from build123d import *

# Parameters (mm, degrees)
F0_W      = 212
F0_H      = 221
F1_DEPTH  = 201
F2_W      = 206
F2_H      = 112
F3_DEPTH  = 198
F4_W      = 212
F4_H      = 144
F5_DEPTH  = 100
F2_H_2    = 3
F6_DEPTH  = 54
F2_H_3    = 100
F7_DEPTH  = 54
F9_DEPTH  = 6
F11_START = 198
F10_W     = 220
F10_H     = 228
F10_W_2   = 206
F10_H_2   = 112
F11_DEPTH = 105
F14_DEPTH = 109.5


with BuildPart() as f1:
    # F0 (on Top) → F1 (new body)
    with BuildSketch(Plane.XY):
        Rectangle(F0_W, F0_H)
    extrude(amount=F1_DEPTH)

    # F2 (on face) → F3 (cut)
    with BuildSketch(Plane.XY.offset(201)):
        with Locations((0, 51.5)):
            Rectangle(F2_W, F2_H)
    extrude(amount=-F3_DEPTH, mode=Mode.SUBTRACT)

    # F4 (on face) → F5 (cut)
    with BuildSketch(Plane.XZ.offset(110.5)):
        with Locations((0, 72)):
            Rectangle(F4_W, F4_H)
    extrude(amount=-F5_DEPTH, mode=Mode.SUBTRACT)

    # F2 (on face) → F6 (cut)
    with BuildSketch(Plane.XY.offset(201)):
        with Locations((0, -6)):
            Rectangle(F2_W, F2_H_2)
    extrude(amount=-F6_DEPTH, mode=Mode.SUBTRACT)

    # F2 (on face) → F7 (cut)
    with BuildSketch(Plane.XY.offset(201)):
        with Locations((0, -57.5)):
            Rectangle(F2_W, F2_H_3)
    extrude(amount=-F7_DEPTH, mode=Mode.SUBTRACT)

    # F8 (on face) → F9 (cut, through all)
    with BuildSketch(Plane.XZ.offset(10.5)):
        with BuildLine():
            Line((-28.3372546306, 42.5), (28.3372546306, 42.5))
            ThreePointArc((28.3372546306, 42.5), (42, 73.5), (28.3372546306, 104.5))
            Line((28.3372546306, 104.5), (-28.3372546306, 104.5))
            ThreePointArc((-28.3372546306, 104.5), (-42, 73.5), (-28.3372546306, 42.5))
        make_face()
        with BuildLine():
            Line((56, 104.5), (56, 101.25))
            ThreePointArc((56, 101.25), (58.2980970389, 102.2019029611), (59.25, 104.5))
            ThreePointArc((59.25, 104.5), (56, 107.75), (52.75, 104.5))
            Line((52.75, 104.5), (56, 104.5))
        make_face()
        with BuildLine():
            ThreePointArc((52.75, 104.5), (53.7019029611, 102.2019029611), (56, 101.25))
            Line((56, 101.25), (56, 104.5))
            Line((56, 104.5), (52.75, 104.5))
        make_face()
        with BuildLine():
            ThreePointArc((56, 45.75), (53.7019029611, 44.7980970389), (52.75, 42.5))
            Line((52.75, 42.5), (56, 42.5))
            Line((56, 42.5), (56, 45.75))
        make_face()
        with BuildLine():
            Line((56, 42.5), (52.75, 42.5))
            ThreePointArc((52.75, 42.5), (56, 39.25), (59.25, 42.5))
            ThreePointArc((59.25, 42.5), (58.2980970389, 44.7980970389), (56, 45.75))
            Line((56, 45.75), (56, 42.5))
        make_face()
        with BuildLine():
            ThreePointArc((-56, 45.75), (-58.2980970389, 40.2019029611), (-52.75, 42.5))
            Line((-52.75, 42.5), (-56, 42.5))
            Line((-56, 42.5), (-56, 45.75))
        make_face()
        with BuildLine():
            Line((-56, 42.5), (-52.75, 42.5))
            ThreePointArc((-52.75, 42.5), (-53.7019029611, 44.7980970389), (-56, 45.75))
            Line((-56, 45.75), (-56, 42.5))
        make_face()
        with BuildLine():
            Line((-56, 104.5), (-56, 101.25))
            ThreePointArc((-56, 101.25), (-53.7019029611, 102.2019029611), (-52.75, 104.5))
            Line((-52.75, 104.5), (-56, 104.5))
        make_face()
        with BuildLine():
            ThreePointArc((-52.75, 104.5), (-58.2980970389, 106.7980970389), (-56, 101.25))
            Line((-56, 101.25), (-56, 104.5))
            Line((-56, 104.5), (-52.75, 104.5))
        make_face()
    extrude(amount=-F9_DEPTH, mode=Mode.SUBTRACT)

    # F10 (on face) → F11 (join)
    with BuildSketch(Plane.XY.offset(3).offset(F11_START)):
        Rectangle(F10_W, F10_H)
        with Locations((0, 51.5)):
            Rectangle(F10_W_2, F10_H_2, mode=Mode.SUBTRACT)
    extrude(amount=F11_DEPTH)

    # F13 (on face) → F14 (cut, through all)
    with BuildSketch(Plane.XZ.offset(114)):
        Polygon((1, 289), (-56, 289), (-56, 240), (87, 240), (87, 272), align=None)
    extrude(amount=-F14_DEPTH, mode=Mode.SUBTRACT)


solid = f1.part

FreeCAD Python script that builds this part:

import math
import FreeCAD as App
import Part
import Sketcher

doc = App.newDocument("Part")
params = doc.addObject("Spreadsheet::Sheet", "Params")
for row, (alias, value) in enumerate([
    ("sketch1_width", "212 mm"),
    ("sketch1_height", "221 mm"),
    ("pad1_length", "201 mm"),
    ("sketch2_width", "206 mm"),
    ("sketch2_height", "112 mm"),
    ("pocket1_length", "198 mm"),
    ("sketch3_width", "212 mm"),
    ("sketch3_height", "144 mm"),
    ("pocket2_length", "100 mm"),
    ("sketch4_width", "206 mm"),
    ("sketch4_height", "3 mm"),
    ("pocket3_length", "54 mm"),
    ("sketch5_width", "206 mm"),
    ("sketch5_height", "100 mm"),
    ("pocket4_length", "54 mm"),
    ("sketch6_radius", "42 mm"),
    ("sketch6_radius2", "3.25 mm"),
    ("pocket5_length", "6 mm"),
    ("sketch7_width", "220 mm"),
    ("sketch7_width2", "206 mm"),
    ("sketch7_height", "228 mm"),
    ("sketch7_height2", "112 mm"),
    ("pad2_length", "105 mm"),
    ("sketch8_width", "57 mm"),
    ("sketch8_width2", "143 mm"),
    ("sketch8_height", "49 mm"),
    ("sketch8_height2", "32 mm"),
    ("pocket6_length", "109.5 mm"),
], start=1):
    params.set(f"A{row}", alias)
    params.set(f"B{row}", "=" + value)
    params.setAlias(f"B{row}", alias)

body = doc.addObject("PartDesign::Body", "Body")

sketch1 = body.newObject("Sketcher::SketchObject", "Sketch")
sketch1.AttachmentSupport = (doc.getObject("XY_Plane"), [""])
sketch1.MapMode = "FlatFace"
sketch1.addGeometry([
    Part.LineSegment(App.Vector(-106, 110, 0), App.Vector(-106, -110, 0)),
    Part.LineSegment(App.Vector(-106, -110, 0), App.Vector(106, -110, 0)),
    Part.LineSegment(App.Vector(106, -110, 0), App.Vector(106, 110, 0)),
    Part.LineSegment(App.Vector(106, 110, 0), App.Vector(-106, 110, 0)),
], False)
sketch1.addConstraint([
    Sketcher.Constraint("Coincident", 0, 2, 1, 1),
    Sketcher.Constraint("Coincident", 1, 2, 2, 1),
    Sketcher.Constraint("Coincident", 2, 2, 3, 1),
    Sketcher.Constraint("Coincident", 3, 2, 0, 1),
    Sketcher.Constraint("Vertical", 0),
    Sketcher.Constraint("Horizontal", 1),
    Sketcher.Constraint("Vertical", 2),
    Sketcher.Constraint("Horizontal", 3),
    Sketcher.Constraint("Symmetric", 0, 2, 2, 2, -1, 1),
    Sketcher.Constraint("DistanceX", 1, 1, 1, 2, 212.0),
    Sketcher.Constraint("DistanceY", 0, 2, 0, 1, 221.0),
])
sketch1.setExpression("Constraints[9]", "Params.sketch1_width")
sketch1.setExpression("Constraints[10]", "Params.sketch1_height")
pad1 = body.newObject("PartDesign::Pad", "Pad")
pad1.Profile = sketch1
pad1.setExpression("Length", "Params.pad1_length")

sketch2 = body.newObject("Sketcher::SketchObject", "Sketch001")
sketch2.AttachmentSupport = (doc.getObject("XY_Plane"), [""])
sketch2.MapMode = "FlatFace"
sketch2.AttachmentOffset = App.Placement(App.Vector(0, 0, 201), App.Rotation())
sketch2.addGeometry([
    Part.LineSegment(App.Vector(-103, 108, 0), App.Vector(-103, -4, 0)),
    Part.LineSegment(App.Vector(-103, -4, 0), App.Vector(103, -4, 0)),
    Part.LineSegment(App.Vector(103, -4, 0), App.Vector(103, 108, 0)),
    Part.LineSegment(App.Vector(103, 108, 0), App.Vector(-103, 108, 0)),
], False)
sketch2.addConstraint([
    Sketcher.Constraint("Coincident", 0, 2, 1, 1),
    Sketcher.Constraint("Coincident", 1, 2, 2, 1),
    Sketcher.Constraint("Coincident", 2, 2, 3, 1),
    Sketcher.Constraint("Coincident", 3, 2, 0, 1),
    Sketcher.Constraint("Vertical", 0),
    Sketcher.Constraint("Horizontal", 1),
    Sketcher.Constraint("Vertical", 2),
    Sketcher.Constraint("Horizontal", 3),
    Sketcher.Constraint("DistanceX", 1, 1, 1, 2, 206.0),
    Sketcher.Constraint("DistanceY", 0, 2, 0, 1, 112.0),
    Sketcher.Constraint("DistanceX", 0, 2, -1, 1, 103.0),
    Sketcher.Constraint("DistanceY", 0, 2, -1, 1, 4.5),
])
sketch2.setExpression("Constraints[8]", "Params.sketch2_width")
sketch2.setExpression("Constraints[9]", "Params.sketch2_height")
pocket1 = body.newObject("PartDesign::Pocket", "Pocket")
pocket1.Profile = sketch2
pocket1.setExpression("Length", "Params.pocket1_length")

sketch3 = body.newObject("Sketcher::SketchObject", "Sketch002")
sketch3.AttachmentSupport = (doc.getObject("XZ_Plane"), [""])
sketch3.MapMode = "FlatFace"
sketch3.AttachmentOffset = App.Placement(App.Vector(0, 0, 110.5), App.Rotation())
sketch3.addGeometry([
    Part.LineSegment(App.Vector(-106, 144, 0), App.Vector(-106, 0, 0)),
    Part.LineSegment(App.Vector(-106, 0, 0), App.Vector(106, 0, 0)),
    Part.LineSegment(App.Vector(106, 0, 0), App.Vector(106, 144, 0)),
    Part.LineSegment(App.Vector(106, 144, 0), App.Vector(-106, 144, 0)),
], False)
sketch3.addConstraint([
    Sketcher.Constraint("Coincident", 0, 2, 1, 1),
    Sketcher.Constraint("Coincident", 1, 2, 2, 1),
    Sketcher.Constraint("Coincident", 2, 2, 3, 1),
    Sketcher.Constraint("Coincident", 3, 2, 0, 1),
    Sketcher.Constraint("Vertical", 0),
    Sketcher.Constraint("Horizontal", 1),
    Sketcher.Constraint("Vertical", 2),
    Sketcher.Constraint("Horizontal", 3),
    Sketcher.Constraint("Symmetric", 0, 2, 1, 2, -1, 1),
    Sketcher.Constraint("DistanceX", 1, 1, 1, 2, 212.0),
    Sketcher.Constraint("DistanceY", 0, 2, 0, 1, 144.0),
])
sketch3.setExpression("Constraints[9]", "Params.sketch3_width")
sketch3.setExpression("Constraints[10]", "Params.sketch3_height")
pocket2 = body.newObject("PartDesign::Pocket", "Pocket001")
pocket2.Profile = sketch3
pocket2.setExpression("Length", "Params.pocket2_length")

sketch4 = body.newObject("Sketcher::SketchObject", "Sketch003")
sketch4.AttachmentSupport = (doc.getObject("XY_Plane"), [""])
sketch4.MapMode = "FlatFace"
sketch4.AttachmentOffset = App.Placement(App.Vector(0, 0, 201), App.Rotation())
sketch4.addGeometry([
    Part.LineSegment(App.Vector(-103, -4.5, 0), App.Vector(-103, -7.5, 0)),
    Part.LineSegment(App.Vector(-103, -7.5, 0), App.Vector(103, -7.5, 0)),
    Part.LineSegment(App.Vector(103, -7.5, 0), App.Vector(103, -4.5, 0)),
    Part.LineSegment(App.Vector(103, -4.5, 0), App.Vector(-103, -4.5, 0)),
], False)
sketch4.addConstraint([
    Sketcher.Constraint("Coincident", 0, 2, 1, 1),
    Sketcher.Constraint("Coincident", 1, 2, 2, 1),
    Sketcher.Constraint("Coincident", 2, 2, 3, 1),
    Sketcher.Constraint("Coincident", 3, 2, 0, 1),
    Sketcher.Constraint("Vertical", 0),
    Sketcher.Constraint("Horizontal", 1),
    Sketcher.Constraint("Vertical", 2),
    Sketcher.Constraint("Horizontal", 3),
    Sketcher.Constraint("DistanceX", 1, 1, 1, 2, 206.0),
    Sketcher.Constraint("DistanceY", 0, 2, 0, 1, 3.0),
    Sketcher.Constraint("DistanceX", 0, 2, -1, 1, 103.0),
    Sketcher.Constraint("DistanceY", 0, 2, -1, 1, 7.5),
])
sketch4.setExpression("Constraints[8]", "Params.sketch4_width")
sketch4.setExpression("Constraints[9]", "Params.sketch4_height")
pocket3 = body.newObject("PartDesign::Pocket", "Pocket002")
pocket3.Profile = sketch4
pocket3.setExpression("Length", "Params.pocket3_length")

sketch5 = body.newObject("Sketcher::SketchObject", "Sketch004")
sketch5.AttachmentSupport = (doc.getObject("XY_Plane"), [""])
sketch5.MapMode = "FlatFace"
sketch5.AttachmentOffset = App.Placement(App.Vector(0, 0, 201), App.Rotation())
sketch5.addGeometry([
    Part.LineSegment(App.Vector(-103, -8, 0), App.Vector(-103, -108, 0)),
    Part.LineSegment(App.Vector(-103, -108, 0), App.Vector(103, -108, 0)),
    Part.LineSegment(App.Vector(103, -108, 0), App.Vector(103, -8, 0)),
    Part.LineSegment(App.Vector(103, -8, 0), App.Vector(-103, -8, 0)),
], False)
sketch5.addConstraint([
    Sketcher.Constraint("Coincident", 0, 2, 1, 1),
    Sketcher.Constraint("Coincident", 1, 2, 2, 1),
    Sketcher.Constraint("Coincident", 2, 2, 3, 1),
    Sketcher.Constraint("Coincident", 3, 2, 0, 1),
    Sketcher.Constraint("Vertical", 0),
    Sketcher.Constraint("Horizontal", 1),
    Sketcher.Constraint("Vertical", 2),
    Sketcher.Constraint("Horizontal", 3),
    Sketcher.Constraint("DistanceX", 1, 1, 1, 2, 206.0),
    Sketcher.Constraint("DistanceY", 0, 2, 0, 1, 100.0),
    Sketcher.Constraint("DistanceX", 0, 2, -1, 1, 103.0),
    Sketcher.Constraint("DistanceY", 0, 2, -1, 1, 107.5),
])
sketch5.setExpression("Constraints[8]", "Params.sketch5_width")
sketch5.setExpression("Constraints[9]", "Params.sketch5_height")
pocket4 = body.newObject("PartDesign::Pocket", "Pocket003")
pocket4.Profile = sketch5
pocket4.setExpression("Length", "Params.pocket4_length")

sketch6 = body.newObject("Sketcher::SketchObject", "Sketch005")
sketch6.AttachmentSupport = (doc.getObject("XZ_Plane"), [""])
sketch6.MapMode = "FlatFace"
sketch6.AttachmentOffset = App.Placement(App.Vector(0, 0, 10.5), App.Rotation())
sketch6.addGeometry([
    Part.LineSegment(App.Vector(-28.3, 42.5, 0), App.Vector(28.3, 42.5, 0)),
    Part.ArcOfCircle(Part.Circle(App.Vector(0, 73.5, 0), App.Vector(0, 0, 1), 42), math.radians(-48), math.radians(48)),
    Part.LineSegment(App.Vector(28.3, 104.5, 0), App.Vector(-28.3, 104.5, 0)),
    Part.ArcOfCircle(Part.Circle(App.Vector(0, 73.5, 0), App.Vector(0, 0, 1), 42), math.radians(132), math.radians(228)),
    Part.ArcOfCircle(Part.Circle(App.Vector(56, 104.5, 0), App.Vector(0, 0, 1), 3.2), math.radians(-90), math.radians(0)),
    Part.ArcOfCircle(Part.Circle(App.Vector(56, 104.5, 0), App.Vector(0, 0, 1), 3.2), math.radians(0), math.radians(180)),
    Part.ArcOfCircle(Part.Circle(App.Vector(56, 104.5, 0), App.Vector(0, 0, 1), 3.2), math.radians(180), math.radians(270)),
    Part.ArcOfCircle(Part.Circle(App.Vector(56, 42.5, 0), App.Vector(0, 0, 1), 3.2), math.radians(90), math.radians(180)),
    Part.ArcOfCircle(Part.Circle(App.Vector(56, 42.5, 0), App.Vector(0, 0, 1), 3.2), math.radians(180), math.radians(360)),
    Part.ArcOfCircle(Part.Circle(App.Vector(56, 42.5, 0), App.Vector(0, 0, 1), 3.2), math.radians(0), math.radians(90)),
    Part.ArcOfCircle(Part.Circle(App.Vector(-56, 42.5, 0), App.Vector(0, 0, 1), 3.2), math.radians(90), math.radians(360)),
    Part.ArcOfCircle(Part.Circle(App.Vector(-56, 42.5, 0), App.Vector(0, 0, 1), 3.2), math.radians(0), math.radians(90)),
    Part.ArcOfCircle(Part.Circle(App.Vector(-56, 104.5, 0), App.Vector(0, 0, 1), 3.2), math.radians(-90), math.radians(0)),
    Part.ArcOfCircle(Part.Circle(App.Vector(-56, 104.5, 0), App.Vector(0, 0, 1), 3.2), math.radians(0), math.radians(270)),
], False)
sketch6.addConstraint([
    Sketcher.Constraint("Coincident", 0, 2, 1, 1),
    Sketcher.Constraint("Coincident", 1, 2, 2, 1),
    Sketcher.Constraint("Coincident", 2, 2, 3, 1),
    Sketcher.Constraint("Coincident", 3, 2, 0, 1),
    Sketcher.Constraint("Tangent", 4, 2, 5, 1),
    Sketcher.Constraint("Tangent", 5, 2, 6, 1),
    Sketcher.Constraint("Tangent", 6, 2, 4, 1),
    Sketcher.Constraint("Tangent", 7, 2, 8, 1),
    Sketcher.Constraint("Tangent", 8, 2, 9, 1),
    Sketcher.Constraint("Tangent", 9, 2, 7, 1),
    Sketcher.Constraint("Tangent", 10, 1, 11, 2),
    Sketcher.Constraint("Coincident", 11, 1, 10, 2),
    Sketcher.Constraint("Tangent", 12, 1, 13, 2),
    Sketcher.Constraint("Coincident", 13, 1, 12, 2),
    Sketcher.Constraint("Horizontal", 0),
    Sketcher.Constraint("Horizontal", 2),
    Sketcher.Constraint("Coincident", 3, 3, 1, 3),
    Sketcher.Constraint("Equal", 1, 3),
    Sketcher.Constraint("Equal", 6, 7),
    Sketcher.Constraint("Equal", 9, 10),
    Sketcher.Constraint("Equal", 11, 12),
    Sketcher.Constraint("Symmetric", 7, 3, 10, 3, -2),
    Sketcher.Constraint("Symmetric", 4, 3, 12, 3, -2),
    Sketcher.Constraint("PointOnObject", 1, 3, -2),
    Sketcher.Constraint("Horizontal", 11, 3, 0, 2),
    Sketcher.Constraint("Horizontal", 13, 3, 1, 2),
    Sketcher.Constraint("Horizontal", 2, 2, 4, 2),
    Sketcher.Constraint("Horizontal", 4, 2, 5, 2),
    Sketcher.Constraint("Horizontal", 3, 2, 7, 2),
    Sketcher.Constraint("Horizontal", 7, 2, 8, 2),
    Sketcher.Constraint("Horizontal", 8, 2, 11, 1),
    Sketcher.Constraint("Horizontal", 5, 2, 13, 1),
    Sketcher.Constraint("Vertical", 6, 3, 7, 3),
    Sketcher.Constraint("Vertical", 0, 2, 1, 2),
    Sketcher.Constraint("Vertical", 9, 3, 6, 2),
    Sketcher.Constraint("Vertical", 6, 2, 9, 2),
    Sketcher.Constraint("Vertical", 13, 3, 10, 1),
    Sketcher.Constraint("Vertical", 10, 1, 12, 1),
    Sketcher.Constraint("Radius", 1, 42.0),
    Sketcher.Constraint("Radius", 4, 3.25),
    Sketcher.Constraint("DistanceX", -1, 1, 4, 3, 56.0),
    Sketcher.Constraint("DistanceY", 1, 3, 4, 3, 31.0),
    Sketcher.Constraint("DistanceY", -1, 1, 1, 3, 73.5),
])
sketch6.setExpression("Constraints[38]", "Params.sketch6_radius")
sketch6.setExpression("Constraints[39]", "Params.sketch6_radius2")
pocket5 = body.newObject("PartDesign::Pocket", "Pocket004")
pocket5.Profile = sketch6
pocket5.setExpression("Length", "Params.pocket5_length")

sketch7 = body.newObject("Sketcher::SketchObject", "Sketch006")
sketch7.AttachmentSupport = (doc.getObject("XY_Plane"), [""])
sketch7.MapMode = "FlatFace"
sketch7.AttachmentOffset = App.Placement(App.Vector(0, 0, 201), App.Rotation())
sketch7.addGeometry([
    Part.LineSegment(App.Vector(-110, 114, 0), App.Vector(-110, -114, 0)),
    Part.LineSegment(App.Vector(-110, -114, 0), App.Vector(110, -114, 0)),
    Part.LineSegment(App.Vector(110, -114, 0), App.Vector(110, 114, 0)),
    Part.LineSegment(App.Vector(110, 114, 0), App.Vector(-110, 114, 0)),
    Part.LineSegment(App.Vector(103, -4, 0), App.Vector(-103, -4, 0)),
    Part.LineSegment(App.Vector(-103, -4, 0), App.Vector(-103, 108, 0)),
    Part.LineSegment(App.Vector(-103, 108, 0), App.Vector(103, 108, 0)),
    Part.LineSegment(App.Vector(103, 108, 0), App.Vector(103, -4, 0)),
], False)
sketch7.addConstraint([
    Sketcher.Constraint("Coincident", 0, 2, 1, 1),
    Sketcher.Constraint("Coincident", 1, 2, 2, 1),
    Sketcher.Constraint("Coincident", 2, 2, 3, 1),
    Sketcher.Constraint("Coincident", 3, 2, 0, 1),
    Sketcher.Constraint("Coincident", 4, 2, 5, 1),
    Sketcher.Constraint("Coincident", 5, 2, 6, 1),
    Sketcher.Constraint("Coincident", 6, 2, 7, 1),
    Sketcher.Constraint("Coincident", 7, 2, 4, 1),
    Sketcher.Constraint("Vertical", 0),
    Sketcher.Constraint("Horizontal", 1),
    Sketcher.Constraint("Vertical", 2),
    Sketcher.Constraint("Horizontal", 3),
    Sketcher.Constraint("Horizontal", 4),
    Sketcher.Constraint("Vertical", 5),
    Sketcher.Constraint("Horizontal", 6),
    Sketcher.Constraint("Vertical", 7),
    Sketcher.Constraint("Symmetric", 0, 2, 2, 2, -1, 1),
    Sketcher.Constraint("DistanceX", 1, 1, 1, 2, 220.0),
    Sketcher.Constraint("DistanceX", 4, 2, 4, 1, 206.0),
    Sketcher.Constraint("DistanceY", 0, 2, 0, 1, 228.0),
    Sketcher.Constraint("DistanceY", 5, 1, 5, 2, 112.0),
    Sketcher.Constraint("DistanceX", 4, 2, -1, 1, 103.0),
    Sketcher.Constraint("DistanceY", 4, 2, -1, 1, 4.5),
])
sketch7.setExpression("Constraints[17]", "Params.sketch7_width")
sketch7.setExpression("Constraints[18]", "Params.sketch7_width2")
sketch7.setExpression("Constraints[19]", "Params.sketch7_height")
sketch7.setExpression("Constraints[20]", "Params.sketch7_height2")
pad2 = body.newObject("PartDesign::Pad", "Pad001")
pad2.Profile = sketch7
pad2.setExpression("Length", "Params.pad2_length")

sketch8 = body.newObject("Sketcher::SketchObject", "Sketch007")
sketch8.AttachmentSupport = (doc.getObject("XZ_Plane"), [""])
sketch8.MapMode = "FlatFace"
sketch8.AttachmentOffset = App.Placement(App.Vector(0, 0, 114), App.Rotation())
sketch8.addGeometry([
    Part.LineSegment(App.Vector(1, 289, 0), App.Vector(-56, 289, 0)),
    Part.LineSegment(App.Vector(-56, 289, 0), App.Vector(-56, 240, 0)),
    Part.LineSegment(App.Vector(-56, 240, 0), App.Vector(87, 240, 0)),
    Part.LineSegment(App.Vector(87, 240, 0), App.Vector(87, 272, 0)),
    Part.LineSegment(App.Vector(87, 272, 0), App.Vector(1, 289, 0)),
], False)
sketch8.addConstraint([
    Sketcher.Constraint("Coincident", 0, 2, 1, 1),
    Sketcher.Constraint("Coincident", 1, 2, 2, 1),
    Sketcher.Constraint("Coincident", 2, 2, 3, 1),
    Sketcher.Constraint("Coincident", 3, 2, 4, 1),
    Sketcher.Constraint("Coincident", 4, 2, 0, 1),
    Sketcher.Constraint("Horizontal", 0),
    Sketcher.Constraint("Vertical", 1),
    Sketcher.Constraint("Horizontal", 2),
    Sketcher.Constraint("Vertical", 3),
    Sketcher.Constraint("DistanceX", 0, 2, 0, 1, 57.0),
    Sketcher.Constraint("DistanceX", 2, 1, 2, 2, 143.0),
    Sketcher.Constraint("DistanceY", 1, 2, 1, 1, 49.0),
    Sketcher.Constraint("DistanceY", 3, 1, 3, 2, 32.0),
    Sketcher.Constraint("DistanceX", 0, 2, -1, 1, 56.0),
    Sketcher.Constraint("DistanceY", -1, 1, 0, 2, 289.0),
])
sketch8.setExpression("Constraints[9]", "Params.sketch8_width")
sketch8.setExpression("Constraints[10]", "Params.sketch8_width2")
sketch8.setExpression("Constraints[11]", "Params.sketch8_height")
sketch8.setExpression("Constraints[12]", "Params.sketch8_height2")
pocket6 = body.newObject("PartDesign::Pocket", "Pocket005")
pocket6.Profile = sketch8
pocket6.setExpression("Length", "Params.pocket6_length")

doc.recompute()
